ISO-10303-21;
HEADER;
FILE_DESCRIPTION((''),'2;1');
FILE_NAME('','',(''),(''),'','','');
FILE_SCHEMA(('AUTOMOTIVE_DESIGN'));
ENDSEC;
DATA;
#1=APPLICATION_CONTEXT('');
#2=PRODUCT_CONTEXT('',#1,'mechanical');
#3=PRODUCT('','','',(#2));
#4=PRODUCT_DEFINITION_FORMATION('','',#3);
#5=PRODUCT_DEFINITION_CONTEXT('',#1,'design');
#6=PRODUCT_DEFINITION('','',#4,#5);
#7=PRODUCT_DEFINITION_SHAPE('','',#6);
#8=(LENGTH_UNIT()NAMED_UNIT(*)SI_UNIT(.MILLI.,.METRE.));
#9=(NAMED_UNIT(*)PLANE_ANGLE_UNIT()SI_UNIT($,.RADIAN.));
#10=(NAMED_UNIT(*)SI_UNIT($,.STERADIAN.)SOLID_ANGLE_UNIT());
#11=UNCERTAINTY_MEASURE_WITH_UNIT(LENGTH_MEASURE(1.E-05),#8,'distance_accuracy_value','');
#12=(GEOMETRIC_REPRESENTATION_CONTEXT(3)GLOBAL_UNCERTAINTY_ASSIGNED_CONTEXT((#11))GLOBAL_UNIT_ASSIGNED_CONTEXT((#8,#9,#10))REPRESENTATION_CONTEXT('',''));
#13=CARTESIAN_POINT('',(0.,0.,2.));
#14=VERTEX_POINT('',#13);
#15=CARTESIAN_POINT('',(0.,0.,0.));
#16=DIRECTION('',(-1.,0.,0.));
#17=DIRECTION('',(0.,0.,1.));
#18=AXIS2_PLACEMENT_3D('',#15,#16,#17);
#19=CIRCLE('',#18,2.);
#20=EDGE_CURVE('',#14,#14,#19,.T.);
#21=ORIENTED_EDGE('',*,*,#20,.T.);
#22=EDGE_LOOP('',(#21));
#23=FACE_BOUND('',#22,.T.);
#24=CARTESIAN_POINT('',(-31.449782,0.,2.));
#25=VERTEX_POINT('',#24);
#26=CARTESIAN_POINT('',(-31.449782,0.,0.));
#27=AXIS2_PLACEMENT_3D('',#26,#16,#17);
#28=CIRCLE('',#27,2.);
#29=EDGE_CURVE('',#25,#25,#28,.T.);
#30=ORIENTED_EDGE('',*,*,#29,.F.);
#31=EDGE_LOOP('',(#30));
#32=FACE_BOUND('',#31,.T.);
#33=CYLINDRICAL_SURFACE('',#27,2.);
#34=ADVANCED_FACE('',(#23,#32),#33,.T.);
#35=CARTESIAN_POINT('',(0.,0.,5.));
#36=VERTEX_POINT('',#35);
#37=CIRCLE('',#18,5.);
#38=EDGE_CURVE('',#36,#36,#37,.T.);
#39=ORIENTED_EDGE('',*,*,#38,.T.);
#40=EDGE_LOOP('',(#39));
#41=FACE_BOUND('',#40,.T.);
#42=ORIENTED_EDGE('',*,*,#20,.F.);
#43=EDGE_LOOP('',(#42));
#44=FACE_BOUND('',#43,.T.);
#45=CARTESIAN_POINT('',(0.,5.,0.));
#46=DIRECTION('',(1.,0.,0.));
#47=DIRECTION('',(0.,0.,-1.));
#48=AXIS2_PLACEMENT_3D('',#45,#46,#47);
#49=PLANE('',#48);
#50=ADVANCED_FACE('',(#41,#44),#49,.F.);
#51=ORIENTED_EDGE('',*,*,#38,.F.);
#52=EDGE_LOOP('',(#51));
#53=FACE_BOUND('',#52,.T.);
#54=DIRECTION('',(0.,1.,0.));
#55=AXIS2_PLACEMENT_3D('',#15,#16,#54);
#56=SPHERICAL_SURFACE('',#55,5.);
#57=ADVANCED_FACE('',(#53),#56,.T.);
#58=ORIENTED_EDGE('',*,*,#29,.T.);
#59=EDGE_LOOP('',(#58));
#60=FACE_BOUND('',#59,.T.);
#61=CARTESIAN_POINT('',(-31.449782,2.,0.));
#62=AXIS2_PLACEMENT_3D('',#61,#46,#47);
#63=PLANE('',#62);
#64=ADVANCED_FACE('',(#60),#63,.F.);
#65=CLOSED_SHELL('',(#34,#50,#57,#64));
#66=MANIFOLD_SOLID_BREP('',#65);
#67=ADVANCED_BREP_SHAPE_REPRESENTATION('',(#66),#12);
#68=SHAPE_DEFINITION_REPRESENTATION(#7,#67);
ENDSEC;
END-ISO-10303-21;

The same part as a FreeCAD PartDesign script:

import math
import FreeCAD as App
import Part
import Sketcher

V = App.Vector

doc = App.newDocument("Part")
params = doc.addObject("Spreadsheet::Sheet", "Params")
for row, (alias, value) in enumerate([
    ("sketch1_radius", "5 mm"),
    ("sketch1_height", "3 mm"),
    ("revolution_angle", "360 deg"),
], start=1):
    params.set(f"A{row}", alias)
    params.set(f"B{row}", "=" + value)
    params.setAlias(f"B{row}", alias)

body = doc.addObject("PartDesign::Body", "Body")

# Sketch on XY plane
sketch1 = body.newObject("Sketcher::SketchObject", "Sketch")
sketch1.AttachmentSupport = (doc.getObject("XY_Plane"), [""])
sketch1.MapMode = "FlatFace"
sketch1.addGeometry([
    Part.LineSegment(V(0, 5, 0), V(0, 2, 0)),  # 0
    Part.LineSegment(V(0, 2, 0), V(-31.4, 2, 0)),  # 1
    Part.LineSegment(V(-31.4, 2, 0), V(-31.4, 0, 0)),  # 2
    Part.LineSegment(V(-31.4, 0, 0), V(5, 0, 0)),  # 3
    Part.ArcOfCircle(Part.Circle(V(0, 0, 0), V(0, 0, 1), 5), math.radians(0), math.radians(90)),  # 4
], False)
sketch1.addConstraint([
    Sketcher.Constraint("Coincident", 0, 2, 1, 1),
    Sketcher.Constraint("Coincident", 1, 2, 2, 1),
    Sketcher.Constraint("Coincident", 2, 2, 3, 1),
    Sketcher.Constraint("Coincident", 3, 2, 4, 1),
    Sketcher.Constraint("Coincident", 4, 2, 0, 1),
    Sketcher.Constraint("Vertical", 0),
    Sketcher.Constraint("Horizontal", 1),
    Sketcher.Constraint("Vertical", 2),
    Sketcher.Constraint("Horizontal", 3),
    Sketcher.Constraint("Coincident", 4, 3, -1, 1),
    Sketcher.Constraint("PointOnObject", 0, 2, -2),
    Sketcher.Constraint("PointOnObject", 2, 2, -1),
    Sketcher.Constraint("Radius", 4, 5.0),
    Sketcher.Constraint("DistanceY", 0, 2, 0, 1, 3.0),
    Sketcher.Constraint("DistanceX", 1, 2, 1, 1, 31.449782),
])
sketch1.setExpression("Constraints[12]", "Params.sketch1_radius")
sketch1.setExpression("Constraints[13]", "Params.sketch1_height")
revolution = body.newObject("PartDesign::Revolution", "Revolution")
revolution.Profile = sketch1
revolution.ReferenceAxis = (sketch1, ["H_Axis"])
revolution.setExpression("Angle", "Params.revolution_angle")

doc.recompute()
